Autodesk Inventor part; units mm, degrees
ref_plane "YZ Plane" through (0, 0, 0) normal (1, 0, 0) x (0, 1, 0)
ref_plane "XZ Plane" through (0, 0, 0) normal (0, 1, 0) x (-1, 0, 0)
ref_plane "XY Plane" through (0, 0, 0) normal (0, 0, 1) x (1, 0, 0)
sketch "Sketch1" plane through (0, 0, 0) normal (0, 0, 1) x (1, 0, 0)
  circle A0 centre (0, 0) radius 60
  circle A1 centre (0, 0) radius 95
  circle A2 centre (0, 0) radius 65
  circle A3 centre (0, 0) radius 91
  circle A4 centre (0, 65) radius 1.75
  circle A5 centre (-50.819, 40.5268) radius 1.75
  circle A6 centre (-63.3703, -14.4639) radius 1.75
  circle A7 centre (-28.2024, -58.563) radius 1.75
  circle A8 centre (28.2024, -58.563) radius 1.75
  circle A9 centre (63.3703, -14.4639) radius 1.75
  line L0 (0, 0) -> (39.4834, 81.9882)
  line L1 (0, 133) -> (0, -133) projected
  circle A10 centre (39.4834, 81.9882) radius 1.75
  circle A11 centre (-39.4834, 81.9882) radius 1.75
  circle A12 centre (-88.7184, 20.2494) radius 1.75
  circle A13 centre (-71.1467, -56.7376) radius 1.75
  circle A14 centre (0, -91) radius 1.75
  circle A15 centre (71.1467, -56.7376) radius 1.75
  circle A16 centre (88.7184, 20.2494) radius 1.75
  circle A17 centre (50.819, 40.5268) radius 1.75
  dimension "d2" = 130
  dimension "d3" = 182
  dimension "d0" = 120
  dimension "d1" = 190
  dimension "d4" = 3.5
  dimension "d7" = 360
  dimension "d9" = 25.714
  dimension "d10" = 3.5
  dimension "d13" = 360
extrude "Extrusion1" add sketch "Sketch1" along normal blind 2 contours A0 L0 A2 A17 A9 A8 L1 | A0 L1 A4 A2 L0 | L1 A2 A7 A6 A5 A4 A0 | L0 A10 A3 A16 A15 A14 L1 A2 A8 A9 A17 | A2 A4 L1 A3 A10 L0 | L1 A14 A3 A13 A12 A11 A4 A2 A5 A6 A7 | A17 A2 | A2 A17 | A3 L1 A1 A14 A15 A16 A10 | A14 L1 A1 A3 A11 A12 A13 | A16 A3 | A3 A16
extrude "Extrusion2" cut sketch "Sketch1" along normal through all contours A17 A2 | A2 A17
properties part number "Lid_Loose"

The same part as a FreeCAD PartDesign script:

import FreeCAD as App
import Part
import Sketcher
from FreeCAD import Vector
Q = App.Units.Quantity

doc = App.newDocument("Part")
params = doc.addObject("Spreadsheet::Sheet", "Params")
for row, (alias, value) in enumerate([
    ("sketch1_diameter", "190 mm"),
    ("sketch1_diameter2", "120 mm"),
    ("sketch1_diameter3", "3.5 mm"),
    ("pad1_length", "2 mm"),
    ("sketch2_diameter", "3.5 mm"),
], start=1):
    params.set(f"A{row}", alias)
    params.set(f"B{row}", "=" + value)
    params.setAlias(f"B{row}", alias)

body = doc.addObject("PartDesign::Body", "Body")

sketch1 = body.newObject("Sketcher::SketchObject", "Sketch")
sketch1.AttachmentSupport = (doc.getObject("XY_Plane"), [""])
sketch1.MapMode = "FlatFace"
sketch1.addGeometry([
    Part.Circle(Vector(0, 0, 0), Vector(0, 0, 1), 95),
    Part.Circle(Vector(0, 0, 0), Vector(0, 0, 1), 60),
    Part.Circle(Vector(63.4, -14.5, 0), Vector(0, 0, 1), 1.8),
    Part.Circle(Vector(28.2, -58.6, 0), Vector(0, 0, 1), 1.8),
    Part.Circle(Vector(0, 65, 0), Vector(0, 0, 1), 1.8),
    Part.Circle(Vector(39.5, 82, 0), Vector(0, 0, 1), 1.8),
    Part.Circle(Vector(71.1, -56.7, 0), Vector(0, 0, 1), 1.8),
    Part.Circle(Vector(0, -91, 0), Vector(0, 0, 1), 1.8),
    Part.Circle(Vector(-28.2, -58.6, 0), Vector(0, 0, 1), 1.8),
    Part.Circle(Vector(-63.4, -14.5, 0), Vector(0, 0, 1), 1.8),
    Part.Circle(Vector(-50.8, 40.5, 0), Vector(0, 0, 1), 1.8),
    Part.Circle(Vector(-71.1, -56.7, 0), Vector(0, 0, 1), 1.8),
    Part.Circle(Vector(-88.7, 20.2, 0), Vector(0, 0, 1), 1.8),
    Part.Circle(Vector(-39.5, 82, 0), Vector(0, 0, 1), 1.8),
], False)
sketch1.addConstraint([
    Sketcher.Constraint("Coincident", 0, 3, -1, 1),
    Sketcher.Constraint("Coincident", 1, 3, -1, 1),
    Sketcher.Constraint("Equal", 2, 3),
    Sketcher.Constraint("Equal", 3, 4),
    Sketcher.Constraint("Equal", 4, 5),
    Sketcher.Constraint("Equal", 5, 6),
    Sketcher.Constraint("Equal", 6, 7),
    Sketcher.Constraint("Equal", 7, 8),
    Sketcher.Constraint("Equal", 8, 9),
    Sketcher.Constraint("Equal", 9, 10),
    Sketcher.Constraint("Equal", 10, 11),
    Sketcher.Constraint("Equal", 11, 12),
    Sketcher.Constraint("Equal", 12, 13),
    Sketcher.Constraint("Symmetric", 3, 3, 8, 3, -2),
    Sketcher.Constraint("Symmetric", 2, 3, 9, 3, -2),
    Sketcher.Constraint("Symmetric", 6, 3, 11, 3, -2),
    Sketcher.Constraint("Symmetric", 5, 3, 13, 3, -2),
    Sketcher.Constraint("PointOnObject", 4, 3, -2),
    Sketcher.Constraint("PointOnObject", 7, 3, -2),
    Sketcher.Constraint("Diameter", 0, Q("190 mm")),
    Sketcher.Constraint("Diameter", 1, Q("120 mm")),
    Sketcher.Constraint("Diameter", 2, Q("3.5 mm")),
    Sketcher.Constraint("DistanceY", -1, 1, 4, 3, Q("65 mm")),
    Sketcher.Constraint("DistanceY", 7, 3, -1, 1, Q("91 mm")),
    Sketcher.Constraint("DistanceY", 2, 3, -1, 1, Q("14.464 mm")),
    Sketcher.Constraint("DistanceY", 3, 3, -1, 1, Q("58.563 mm")),
    Sketcher.Constraint("DistanceX", 10, 3, -1, 1, Q("50.819 mm")),
    Sketcher.Constraint("DistanceX", 3, 3, 2, 3, Q("35.168 mm")),
    Sketcher.Constraint("DistanceX", 5, 3, 2, 3, Q("23.887 mm")),
    Sketcher.Constraint("DistanceY", 2, 3, 5, 3, Q("96.452 mm")),
    Sketcher.Constraint("DistanceX", 8, 3, 6, 3, Q("99.349 mm")),
    Sketcher.Constraint("DistanceX", 12, 3, 9, 3, Q("25.348 mm")),
    Sketcher.Constraint("DistanceY", 11, 3, 12, 3, Q("76.987 mm")),
    Sketcher.Constraint("DistanceX", -1, 1, 2, 3, Q("63.3703 mm")),
    Sketcher.Constraint("DistanceY", 6, 3, -1, 1, Q("56.7376 mm")),
    Sketcher.Constraint("DistanceY", -1, 1, 10, 3, Q("40.5268 mm")),
])
sketch1.setExpression("Constraints[19]", "Params.sketch1_diameter")
sketch1.setExpression("Constraints[20]", "Params.sketch1_diameter2")
sketch1.setExpression("Constraints[21]", "Params.sketch1_diameter3")
pad1 = body.newObject("PartDesign::Pad", "Pad")
pad1.Profile = sketch1
pad1.setExpression("Length", "Params.pad1_length")

sketch2 = body.newObject("Sketcher::SketchObject", "Sketch001")
sketch2.AttachmentSupport = (doc.getObject("XY_Plane"), [""])
sketch2.MapMode = "FlatFace"
sketch2.addGeometry(Part.Circle(Vector(50.8, 40.5, 0), Vector(0, 0, 1), 1.8), False)
sketch2.addConstraint([
    Sketcher.Constraint("Diameter", 0, Q("3.5 mm")),
    Sketcher.Constraint("DistanceX", -1, 1, 0, 3, Q("50.819 mm")),
    Sketcher.Constraint("DistanceY", -1, 1, 0, 3, Q("40.5268 mm")),
])
sketch2.setExpression("Constraints[0]", "Params.sketch2_diameter")
pocket1 = body.newObject("PartDesign::Pocket", "Pocket")
pocket1.Profile = sketch2
pocket1.Type = "ThroughAll"
pocket1.Reversed = True

doc.recompute()
